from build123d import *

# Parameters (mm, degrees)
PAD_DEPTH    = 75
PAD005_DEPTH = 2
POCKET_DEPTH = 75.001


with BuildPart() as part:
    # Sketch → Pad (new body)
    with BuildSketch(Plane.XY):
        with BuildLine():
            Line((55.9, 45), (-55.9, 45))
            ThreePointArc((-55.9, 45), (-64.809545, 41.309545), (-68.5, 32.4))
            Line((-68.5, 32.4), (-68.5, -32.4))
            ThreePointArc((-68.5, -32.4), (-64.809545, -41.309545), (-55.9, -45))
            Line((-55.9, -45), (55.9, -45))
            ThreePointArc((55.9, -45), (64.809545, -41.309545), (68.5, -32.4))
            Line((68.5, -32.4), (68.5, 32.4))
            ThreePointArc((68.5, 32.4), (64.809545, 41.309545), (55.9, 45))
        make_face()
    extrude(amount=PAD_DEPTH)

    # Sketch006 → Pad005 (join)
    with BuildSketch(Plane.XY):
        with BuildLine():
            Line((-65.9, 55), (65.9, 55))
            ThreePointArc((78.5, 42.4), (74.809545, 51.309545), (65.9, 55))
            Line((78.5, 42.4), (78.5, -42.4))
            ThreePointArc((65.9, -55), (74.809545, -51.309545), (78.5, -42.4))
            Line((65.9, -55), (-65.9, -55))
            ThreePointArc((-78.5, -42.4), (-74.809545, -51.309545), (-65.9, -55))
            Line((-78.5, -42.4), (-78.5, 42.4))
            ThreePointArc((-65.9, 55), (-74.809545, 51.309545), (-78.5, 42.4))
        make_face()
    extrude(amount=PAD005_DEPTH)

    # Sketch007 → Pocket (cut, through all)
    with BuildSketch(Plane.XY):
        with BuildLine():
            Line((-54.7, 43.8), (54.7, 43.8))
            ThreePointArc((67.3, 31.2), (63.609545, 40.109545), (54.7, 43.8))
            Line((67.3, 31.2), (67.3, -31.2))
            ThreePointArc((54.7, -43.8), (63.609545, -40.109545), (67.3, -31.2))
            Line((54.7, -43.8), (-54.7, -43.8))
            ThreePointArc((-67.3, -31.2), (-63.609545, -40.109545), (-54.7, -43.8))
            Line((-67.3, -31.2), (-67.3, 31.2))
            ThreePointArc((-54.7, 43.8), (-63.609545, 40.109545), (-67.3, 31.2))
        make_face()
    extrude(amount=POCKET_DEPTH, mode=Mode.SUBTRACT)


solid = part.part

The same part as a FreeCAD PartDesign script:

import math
import FreeCAD as App
import Part
import Sketcher

doc = App.newDocument("Part")
body = doc.addObject("PartDesign::Body", "Body")

# Sketch on XY plane
sketch1 = body.newObject("Sketcher::SketchObject", "Sketch")
sketch1.AttachmentSupport = (doc.getObject("XY_Plane"), [""])
sketch1.MapMode = "FlatFace"
sketch1.addGeometry([
    Part.LineSegment(App.Vector(55.9, 45, 0), App.Vector(-55.9, 45, 0)),  # 0
    Part.ArcOfCircle(Part.Circle(App.Vector(-55.899998, 32.399998, 0), App.Vector(0, 0, 1), 12.600002), math.radians(90.000007), math.radians(179.999993)),  # 1
    Part.LineSegment(App.Vector(-68.5, 32.4, 0), App.Vector(-68.5, -32.4, 0)),  # 2
    Part.ArcOfCircle(Part.Circle(App.Vector(-55.899998, -32.399998, 0), App.Vector(0, 0, 1), 12.600002), math.radians(-179.999993), math.radians(-90.000007)),  # 3
    Part.LineSegment(App.Vector(-55.9, -45, 0), App.Vector(55.9, -45, 0)),  # 4
    Part.ArcOfCircle(Part.Circle(App.Vector(55.899998, -32.399998, 0), App.Vector(0, 0, 1), 12.600002), math.radians(-89.999993), math.radians(-0.000007)),  # 5
    Part.LineSegment(App.Vector(68.5, -32.4, 0), App.Vector(68.5, 32.4, 0)),  # 6
    Part.ArcOfCircle(Part.Circle(App.Vector(55.899998, 32.399998, 0), App.Vector(0, 0, 1), 12.600002), math.radians(0.000007), math.radians(89.999993)),  # 7
], False)
sketch1.addConstraint([
    Sketcher.Constraint("Tangent", 0, 2, 1, 1),
    Sketcher.Constraint("Tangent", 1, 2, 2, 1),
    Sketcher.Constraint("Tangent", 2, 2, 3, 1),
    Sketcher.Constraint("Tangent", 3, 2, 4, 1),
    Sketcher.Constraint("Tangent", 4, 2, 5, 1),
    Sketcher.Constraint("Tangent", 5, 2, 6, 1),
    Sketcher.Constraint("Tangent", 6, 2, 7, 1),
    Sketcher.Constraint("Tangent", 7, 2, 0, 1),
    Sketcher.Constraint("Horizontal", 0),
    Sketcher.Constraint("Vertical", 2),
    Sketcher.Constraint("Horizontal", 4),
    Sketcher.Constraint("Vertical", 6),
    Sketcher.Constraint("Equal", 1, 3),
    Sketcher.Constraint("Equal", 3, 5),
    Sketcher.Constraint("Equal", 5, 7),
    Sketcher.Constraint("Symmetric", 1, 3, 5, 3, -1, 1),
    Sketcher.Constraint("Radius", 1, 12.600002),
    Sketcher.Constraint("DistanceX", 0, 2, 0, 1, 111.8),
    Sketcher.Constraint("DistanceY", 2, 2, 2, 1, 64.8),
])
pad1 = body.newObject("PartDesign::Pad", "Pad")
pad1.Profile = sketch1
pad1.Length = 75

# Sketch on XY plane
sketch2 = body.newObject("Sketcher::SketchObject", "Sketch001")
sketch2.AttachmentSupport = (doc.getObject("XY_Plane"), [""])
sketch2.MapMode = "FlatFace"
sketch2.addGeometry([
    Part.LineSegment(App.Vector(65.9, 55, 0), App.Vector(-65.9, 55, 0)),  # 0
    Part.ArcOfCircle(Part.Circle(App.Vector(-65.899998, 42.399998, 0), App.Vector(0, 0, 1), 12.600002), math.radians(90.000007), math.radians(179.999993)),  # 1
    Part.LineSegment(App.Vector(-78.5, 42.4, 0), App.Vector(-78.5, -42.4, 0)),  # 2
    Part.ArcOfCircle(Part.Circle(App.Vector(-65.899998, -42.399998, 0), App.Vector(0, 0, 1), 12.600002), math.radians(-179.999993), math.radians(-90.000007)),  # 3
    Part.LineSegment(App.Vector(-65.9, -55, 0), App.Vector(65.9, -55, 0)),  # 4
    Part.ArcOfCircle(Part.Circle(App.Vector(65.899998, -42.399998, 0), App.Vector(0, 0, 1), 12.600002), math.radians(-89.999993), math.radians(-0.000007)),  # 5
    Part.LineSegment(App.Vector(78.5, -42.4, 0), App.Vector(78.5, 42.4, 0)),  # 6
    Part.ArcOfCircle(Part.Circle(App.Vector(65.899998, 42.399998, 0), App.Vector(0, 0, 1), 12.600002), math.radians(0.000007), math.radians(89.999993)),  # 7
], False)
sketch2.addConstraint([
    Sketcher.Constraint("Tangent", 0, 2, 1, 1),
    Sketcher.Constraint("Tangent", 1, 2, 2, 1),
    Sketcher.Constraint("Tangent", 2, 2, 3, 1),
    Sketcher.Constraint("Tangent", 3, 2, 4, 1),
    Sketcher.Constraint("Tangent", 4, 2, 5, 1),
    Sketcher.Constraint("Tangent", 5, 2, 6, 1),
    Sketcher.Constraint("Tangent", 6, 2, 7, 1),
    Sketcher.Constraint("Tangent", 7, 2, 0, 1),
    Sketcher.Constraint("Horizontal", 0),
    Sketcher.Constraint("Vertical", 2),
    Sketcher.Constraint("Horizontal", 4),
    Sketcher.Constraint("Vertical", 6),
    Sketcher.Constraint("Equal", 1, 3),
    Sketcher.Constraint("Equal", 3, 5),
    Sketcher.Constraint("Equal", 5, 7),
    Sketcher.Constraint("Symmetric", 1, 3, 5, 3, -1, 1),
    Sketcher.Constraint("Radius", 1, 12.600002),
    Sketcher.Constraint("DistanceX", 0, 2, 0, 1, 131.8),
    Sketcher.Constraint("DistanceY", 2, 2, 2, 1, 84.8),
])
pad2 = body.newObject("PartDesign::Pad", "Pad001")
pad2.Profile = sketch2
pad2.Length = 2

# Sketch on XY plane
sketch3 = body.newObject("Sketcher::SketchObject", "Sketch002")
sketch3.AttachmentSupport = (doc.getObject("XY_Plane"), [""])
sketch3.MapMode = "FlatFace"
sketch3.addGeometry([
    Part.LineSegment(App.Vector(54.7, 43.8, 0), App.Vector(-54.7, 43.8, 0)),  # 0
    Part.ArcOfCircle(Part.Circle(App.Vector(-54.699998, 31.199998, 0), App.Vector(0, 0, 1), 12.600002), math.radians(90.000007), math.radians(179.999993)),  # 1
    Part.LineSegment(App.Vector(-67.3, 31.2, 0), App.Vector(-67.3, -31.2, 0)),  # 2
    Part.ArcOfCircle(Part.Circle(App.Vector(-54.699998, -31.199998, 0), App.Vector(0, 0, 1), 12.600002), math.radians(-179.999993), math.radians(-90.000007)),  # 3
    Part.LineSegment(App.Vector(-54.7, -43.8, 0), App.Vector(54.7, -43.8, 0)),  # 4
    Part.ArcOfCircle(Part.Circle(App.Vector(54.699998, -31.199998, 0), App.Vector(0, 0, 1), 12.600002), math.radians(-89.999993), math.radians(-0.000007)),  # 5
    Part.LineSegment(App.Vector(67.3, -31.2, 0), App.Vector(67.3, 31.2, 0)),  # 6
    Part.ArcOfCircle(Part.Circle(App.Vector(54.699998, 31.199998, 0), App.Vector(0, 0, 1), 12.600002), math.radians(0.000007), math.radians(89.999993)),  # 7
], False)
sketch3.addConstraint([
    Sketcher.Constraint("Tangent", 0, 2, 1, 1),
    Sketcher.Constraint("Tangent", 1, 2, 2, 1),
    Sketcher.Constraint("Tangent", 2, 2, 3, 1),
    Sketcher.Constraint("Tangent", 3, 2, 4, 1),
    Sketcher.Constraint("Tangent", 4, 2, 5, 1),
    Sketcher.Constraint("Tangent", 5, 2, 6, 1),
    Sketcher.Constraint("Tangent", 6, 2, 7, 1),
    Sketcher.Constraint("Tangent", 7, 2, 0, 1),
    Sketcher.Constraint("Horizontal", 0),
    Sketcher.Constraint("Vertical", 2),
    Sketcher.Constraint("Horizontal", 4),
    Sketcher.Constraint("Vertical", 6),
    Sketcher.Constraint("Equal", 1, 3),
    Sketcher.Constraint("Equal", 3, 5),
    Sketcher.Constraint("Equal", 5, 7),
    Sketcher.Constraint("Symmetric", 1, 3, 5, 3, -1, 1),
    Sketcher.Constraint("Radius", 1, 12.600002),
    Sketcher.Constraint("DistanceX", 0, 2, 0, 1, 109.4),
    Sketcher.Constraint("DistanceY", 2, 2, 2, 1, 62.4),
])
pocket1 = body.newObject("PartDesign::Pocket", "Pocket")
pocket1.Profile = sketch3
pocket1.Type = "ThroughAll"
pocket1.Reversed = True

doc.recompute()
